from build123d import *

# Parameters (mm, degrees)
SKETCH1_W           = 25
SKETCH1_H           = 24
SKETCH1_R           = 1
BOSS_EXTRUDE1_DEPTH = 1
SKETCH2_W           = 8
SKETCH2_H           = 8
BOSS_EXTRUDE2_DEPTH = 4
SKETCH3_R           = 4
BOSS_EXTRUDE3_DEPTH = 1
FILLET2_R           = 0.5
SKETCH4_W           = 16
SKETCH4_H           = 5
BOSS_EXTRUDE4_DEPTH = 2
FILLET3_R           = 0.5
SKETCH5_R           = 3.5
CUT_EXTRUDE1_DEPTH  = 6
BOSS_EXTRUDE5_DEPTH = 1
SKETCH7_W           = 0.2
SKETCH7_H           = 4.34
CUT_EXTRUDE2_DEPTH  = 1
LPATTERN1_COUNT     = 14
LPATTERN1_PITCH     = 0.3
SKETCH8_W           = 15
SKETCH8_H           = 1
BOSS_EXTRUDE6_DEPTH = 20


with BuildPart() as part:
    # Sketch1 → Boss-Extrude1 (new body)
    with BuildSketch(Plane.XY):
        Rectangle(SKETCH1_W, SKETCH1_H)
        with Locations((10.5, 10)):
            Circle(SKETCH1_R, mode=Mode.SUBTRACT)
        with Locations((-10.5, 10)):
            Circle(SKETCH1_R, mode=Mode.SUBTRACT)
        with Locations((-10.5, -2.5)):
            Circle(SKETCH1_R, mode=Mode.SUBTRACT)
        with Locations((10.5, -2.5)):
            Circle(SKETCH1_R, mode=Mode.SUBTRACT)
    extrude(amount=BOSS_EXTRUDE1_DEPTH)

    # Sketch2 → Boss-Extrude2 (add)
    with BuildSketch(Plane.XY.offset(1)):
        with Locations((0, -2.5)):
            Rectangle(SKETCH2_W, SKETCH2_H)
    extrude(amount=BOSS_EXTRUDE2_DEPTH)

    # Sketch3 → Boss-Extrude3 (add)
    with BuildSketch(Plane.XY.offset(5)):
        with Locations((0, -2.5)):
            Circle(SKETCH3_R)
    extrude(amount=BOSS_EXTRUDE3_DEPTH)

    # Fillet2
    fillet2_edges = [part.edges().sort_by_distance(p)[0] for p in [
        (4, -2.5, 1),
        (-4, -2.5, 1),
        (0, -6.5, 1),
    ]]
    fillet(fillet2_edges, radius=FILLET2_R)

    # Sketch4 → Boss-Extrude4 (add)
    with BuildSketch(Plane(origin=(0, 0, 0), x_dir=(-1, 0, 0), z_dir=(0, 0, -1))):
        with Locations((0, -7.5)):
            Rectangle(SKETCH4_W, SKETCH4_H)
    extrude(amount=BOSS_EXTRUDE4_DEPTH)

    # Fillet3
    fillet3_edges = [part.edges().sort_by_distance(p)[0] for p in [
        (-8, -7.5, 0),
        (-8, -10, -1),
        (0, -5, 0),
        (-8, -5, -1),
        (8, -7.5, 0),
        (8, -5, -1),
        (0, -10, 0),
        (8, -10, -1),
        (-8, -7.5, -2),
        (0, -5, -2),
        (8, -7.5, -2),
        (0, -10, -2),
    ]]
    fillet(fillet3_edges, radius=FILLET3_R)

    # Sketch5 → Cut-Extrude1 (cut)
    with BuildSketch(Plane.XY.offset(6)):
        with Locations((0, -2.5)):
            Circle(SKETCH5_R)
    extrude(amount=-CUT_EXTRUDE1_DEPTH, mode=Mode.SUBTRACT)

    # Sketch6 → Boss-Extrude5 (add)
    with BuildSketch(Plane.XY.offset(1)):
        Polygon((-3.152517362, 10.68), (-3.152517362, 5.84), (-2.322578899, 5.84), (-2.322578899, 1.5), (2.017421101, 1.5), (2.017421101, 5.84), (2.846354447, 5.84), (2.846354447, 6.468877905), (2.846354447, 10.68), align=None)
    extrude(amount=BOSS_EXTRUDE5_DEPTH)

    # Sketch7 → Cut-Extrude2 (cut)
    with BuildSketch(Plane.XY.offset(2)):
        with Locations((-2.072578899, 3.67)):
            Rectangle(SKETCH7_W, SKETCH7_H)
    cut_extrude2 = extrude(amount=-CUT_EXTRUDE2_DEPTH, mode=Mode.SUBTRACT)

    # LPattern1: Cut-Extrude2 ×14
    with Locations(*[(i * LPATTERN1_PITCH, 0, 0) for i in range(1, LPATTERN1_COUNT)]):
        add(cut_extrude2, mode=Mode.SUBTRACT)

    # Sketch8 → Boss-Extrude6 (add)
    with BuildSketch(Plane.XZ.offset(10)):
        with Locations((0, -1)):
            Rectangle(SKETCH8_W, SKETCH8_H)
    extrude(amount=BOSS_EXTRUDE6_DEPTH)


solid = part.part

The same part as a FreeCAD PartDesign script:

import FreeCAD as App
import Part
import Sketcher

V = App.Vector
Q = App.Units.Quantity


def edges_at(feature, points):
    """Names of the edges that pass closest to the given points."""
    edges = feature.Shape.Edges
    near = lambda p: min(range(len(edges)), key=lambda i: edges[i].distToShape(Part.Vertex(*p))[0])
    return sorted({f"Edge{near(p) + 1}" for p in points})


def add_polygon(sketch, points):
    """Adds a closed chain of lines whose ends are joined by coincident constraints."""
    first, n = sketch.GeometryCount, len(points)
    for a, b in zip(points, points[1:] + points[:1]):
        sketch.addGeometry(Part.LineSegment(App.Vector(*a, 0), App.Vector(*b, 0)), False)
    for i in range(n):
        sketch.addConstraint(Sketcher.Constraint("Coincident", first + i, 2, first + (i + 1) % n, 1))

doc = App.newDocument("Part")
params = doc.addObject("Spreadsheet::Sheet", "Params")
for row, (alias, value) in enumerate([
    ("sketch1_diameter", "2 mm"),
    ("sketch1_width", "25 mm"),
    ("sketch1_height", "24 mm"),
    ("pad1_length", "1 mm"),
    ("sketch2_width", "8 mm"),
    ("pad2_length", "4 mm"),
    ("sketch3_diameter", "8 mm"),
    ("pad3_length", "1 mm"),
    ("fillet_radius", "0.5 mm"),
    ("sketch4_width", "16 mm"),
    ("sketch4_height", "5 mm"),
    ("pad4_length", "2 mm"),
    ("fillet2_radius", "0.5 mm"),
    ("sketch5_diameter", "7 mm"),
    ("pocket1_length", "6 mm"),
    ("sketch6_width", "4.34 mm"),
    ("sketch6_height", "4.84 mm"),
    ("pad5_length", "1 mm"),
    ("sketch7_width", "0.2 mm"),
    ("sketch7_height", "4.34 mm"),
    ("pocket2_length", "1 mm"),
    ("linearpattern_pitch", "0.3 mm"),
    ("sketch8_width", "15 mm"),
    ("sketch8_height", "1 mm"),
    ("pad6_length", "20 mm"),
], start=1):
    params.set(f"A{row}", alias)
    params.set(f"B{row}", "=" + value)
    params.setAlias(f"B{row}", alias)

body = doc.addObject("PartDesign::Body", "Body")

# Sketch on XY plane
sketch1 = doc.addObject("Sketcher::SketchObject", "Sketch")
body.addObject(sketch1)
sketch1.AttachmentSupport = (doc.XY_Plane, [""])
sketch1.MapMode = "FlatFace"
add_polygon(sketch1, [(-12.5, 12), (-12.5, -12), (12.5, -12), (12.5, 12)])  # lines 0-3
sketch1.addGeometry(Part.Circle(V(-10.5, -2.5, 0), V(0, 0, 1), 1), False)  # 4
sketch1.addGeometry(Part.Circle(V(10.5, -2.5, 0), V(0, 0, 1), 1), False)  # 5
sketch1.addGeometry(Part.Circle(V(-10.5, 10, 0), V(0, 0, 1), 1), False)  # 6
sketch1.addGeometry(Part.Circle(V(10.5, 10, 0), V(0, 0, 1), 1), False)  # 7
sketch1.addConstraint([
    Sketcher.Constraint("Vertical", 0),
    Sketcher.Constraint("Horizontal", 1),
    Sketcher.Constraint("Vertical", 2),
    Sketcher.Constraint("Horizontal", 3),
    Sketcher.Constraint("Equal", 4, 5),
    Sketcher.Constraint("Equal", 5, 6),
    Sketcher.Constraint("Equal", 6, 7),
    Sketcher.Constraint("Symmetric", 0, 2, 2, 2, -1, 1),
    Sketcher.Constraint("Symmetric", 4, 3, 5, 3, -2),
    Sketcher.Constraint("Symmetric", 6, 3, 7, 3, -2),
    Sketcher.Constraint("Vertical", 4, 3, 6, 3),
    Sketcher.Constraint("Diameter", 4, Q("2 mm")),
    Sketcher.Constraint("DistanceX", 1, 1, 1, 2, Q("25 mm")),
    Sketcher.Constraint("DistanceY", 0, 2, 0, 1, Q("24 mm")),
    Sketcher.Constraint("DistanceY", -1, 1, 6, 3, Q("10 mm")),
    Sketcher.Constraint("DistanceX", 4, 3, 5, 3, Q("21 mm")),
    Sketcher.Constraint("DistanceY", 4, 3, -1, 1, Q("2.5 mm")),
])
sketch1.setExpression("Constraints[15]", "Params.sketch1_diameter")
sketch1.setExpression("Constraints[16]", "Params.sketch1_width")
sketch1.setExpression("Constraints[17]", "Params.sketch1_height")
pad1 = doc.addObject("PartDesign::Pad", "Pad")
body.addObject(pad1)
pad1.Profile = sketch1
pad1.setExpression("Length", "Params.pad1_length")

# Sketch on XY plane
sketch2 = doc.addObject("Sketcher::SketchObject", "Sketch001")
body.addObject(sketch2)
sketch2.AttachmentSupport = (doc.XY_Plane, [""])
sketch2.MapMode = "FlatFace"
sketch2.AttachmentOffset = App.Placement(V(0, 0, 1), App.Rotation())
add_polygon(sketch2, [(-4, 2), (-4, -6), (4, -6), (4, 2)])  # lines 0-3
sketch2.addConstraint([
    Sketcher.Constraint("Vertical", 0),
    Sketcher.Constraint("Horizontal", 1),
    Sketcher.Constraint("Vertical", 2),
    Sketcher.Constraint("Horizontal", 3),
    Sketcher.Constraint("Equal", 3, 0),
    Sketcher.Constraint("DistanceX", 1, 1, 1, 2, Q("8 mm")),
    Sketcher.Constraint("DistanceX", 0, 2, -1, 1, Q("4 mm")),
    Sketcher.Constraint("DistanceY", 0, 2, -1, 1, Q("6.5 mm")),
])
sketch2.setExpression("Constraints[9]", "Params.sketch2_width")
pad2 = doc.addObject("PartDesign::Pad", "Pad001")
body.addObject(pad2)
pad2.Profile = sketch2
pad2.setExpression("Length", "Params.pad2_length")

# Sketch on XY plane
sketch3 = doc.addObject("Sketcher::SketchObject", "Sketch002")
body.addObject(sketch3)
sketch3.AttachmentSupport = (doc.XY_Plane, [""])
sketch3.MapMode = "FlatFace"
sketch3.AttachmentOffset = App.Placement(V(0, 0, 5), App.Rotation())
sketch3.addGeometry(Part.Circle(V(0, -2.5, 0), V(0, 0, 1), 4), False)
sketch3.addConstraint([
    Sketcher.Constraint("PointOnObject", 0, 3, -2),
    Sketcher.Constraint("Diameter", 0, Q("8 mm")),
    Sketcher.Constraint("DistanceY", 0, 3, -1, 1, Q("2.5 mm")),
])
sketch3.setExpression("Constraints[1]", "Params.sketch3_diameter")
pad3 = doc.addObject("PartDesign::Pad", "Pad002")
body.addObject(pad3)
pad3.Profile = sketch3
pad3.setExpression("Length", "Params.pad3_length")
doc.recompute()

fillet = doc.addObject("PartDesign::Fillet", "Fillet")
body.addObject(fillet)
fillet.Base = (pad3, edges_at(pad3, [(4, -2.5, 1), (-4, -2.5, 1), (0, -6.5, 1)]))
fillet.setExpression("Radius", "Params.fillet_radius")

# Sketch on XY plane
sketch4 = doc.addObject("Sketcher::SketchObject", "Sketch003")
body.addObject(sketch4)
sketch4.AttachmentSupport = (doc.XY_Plane, [""])
sketch4.MapMode = "FlatFace"
add_polygon(sketch4, [(8, -5), (8, -10), (-8, -10), (-8, -5)])  # lines 0-3
sketch4.addConstraint([
    Sketcher.Constraint("Vertical", 0),
    Sketcher.Constraint("Horizontal", 1),
    Sketcher.Constraint("Vertical", 2),
    Sketcher.Constraint("Horizontal", 3),
    Sketcher.Constraint("DistanceX", 1, 2, 1, 1, Q("16 mm")),
    Sketcher.Constraint("DistanceY", 0, 2, 0, 1, Q("5 mm")),
    Sketcher.Constraint("DistanceX", -1, 1, 0, 2, Q("8 mm")),
    Sketcher.Constraint("DistanceY", 0, 2, -1, 1, Q("10 mm")),
])
sketch4.setExpression("Constraints[8]", "Params.sketch4_width")
sketch4.setExpression("Constraints[9]", "Params.sketch4_height")
pad4 = doc.addObject("PartDesign::Pad", "Pad003")
body.addObject(pad4)
pad4.Profile = sketch4
pad4.setExpression("Length", "Params.pad4_length")
pad4.Reversed = True
doc.recompute()

fillet2 = doc.addObject("PartDesign::Fillet", "Fillet001")
body.addObject(fillet2)
fillet2.Base = (pad4, edges_at(pad4, [
    (-8, -7.5, 0),
    (-8, -10, -1),
    (0, -5, 0),
    (-8, -5, -1),
    (8, -7.5, 0),
    (8, -5, -1),
    (0, -10, 0),
    (8, -10, -1),
    (-8, -7.5, -2),
    (0, -5, -2),
    (8, -7.5, -2),
    (0, -10, -2),
]))
fillet2.setExpression("Radius", "Params.fillet2_radius")

# Sketch on XY plane
sketch5 = doc.addObject("Sketcher::SketchObject", "Sketch004")
body.addObject(sketch5)
sketch5.AttachmentSupport = (doc.XY_Plane, [""])
sketch5.MapMode = "FlatFace"
sketch5.AttachmentOffset = App.Placement(V(0, 0, 6), App.Rotation())
sketch5.addGeometry(Part.Circle(V(0, -2.5, 0), V(0, 0, 1), 3.5), False)
sketch5.addConstraint([
    Sketcher.Constraint("PointOnObject", 0, 3, -2),
    Sketcher.Constraint("Diameter", 0, Q("7 mm")),
    Sketcher.Constraint("DistanceY", 0, 3, -1, 1, Q("2.5 mm")),
])
sketch5.setExpression("Constraints[1]", "Params.sketch5_diameter")
pocket1 = doc.addObject("PartDesign::Pocket", "Pocket")
body.addObject(pocket1)
pocket1.Profile = sketch5
pocket1.setExpression("Length", "Params.pocket1_length")

# Sketch on XY plane
sketch6 = doc.addObject("Sketcher::SketchObject", "Sketch005")
body.addObject(sketch6)
sketch6.AttachmentSupport = (doc.XY_Plane, [""])
sketch6.MapMode = "FlatFace"
sketch6.AttachmentOffset = App.Placement(V(0, 0, 1), App.Rotation())
add_polygon(sketch6, [(-3.2, 10.7), (-3.2, 5.8), (-2.3, 5.8), (-2.3, 1.5), (2, 1.5), (2, 5.8), (2.8, 5.8), (2.8, 10.7)])  # lines 0-7
sketch6.addConstraint([
    Sketcher.Constraint("Vertical", 0),
    Sketcher.Constraint("Horizontal", 1),
    Sketcher.Constraint("Vertical", 2),
    Sketcher.Constraint("Horizontal", 3),
    Sketcher.Constraint("Vertical", 4),
    Sketcher.Constraint("Horizontal", 5),
    Sketcher.Constraint("Vertical", 6),
    Sketcher.Constraint("Horizontal", 7),
    Sketcher.Constraint("Horizontal", 1, 2, 4, 2),
    Sketcher.Constraint("Equal", 3, 2),
    Sketcher.Constraint("DistanceX", 3, 1, 3, 2, Q("4.34 mm")),
    Sketcher.Constraint("DistanceY", 0, 2, 0, 1, Q("4.84 mm")),
    Sketcher.Constraint("DistanceY", -1, 1, 2, 2, Q("1.5 mm")),
    Sketcher.Constraint("DistanceX", 1, 1, 1, 2, Q("0.829938 mm")),
    Sketcher.Constraint("DistanceX", 7, 2, 7, 1, Q("5.998872 mm")),
    Sketcher.Constraint("DistanceX", 1, 2, -1, 1, Q("2.322579 mm")),
])
sketch6.setExpression("Constraints[18]", "Params.sketch6_width")
sketch6.setExpression("Constraints[19]", "Params.sketch6_height")
pad5 = doc.addObject("PartDesign::Pad", "Pad004")
body.addObject(pad5)
pad5.Profile = sketch6
pad5.setExpression("Length", "Params.pad5_length")

# Sketch on XY plane
sketch7 = doc.addObject("Sketcher::SketchObject", "Sketch006")
body.addObject(sketch7)
sketch7.AttachmentSupport = (doc.XY_Plane, [""])
sketch7.MapMode = "FlatFace"
sketch7.AttachmentOffset = App.Placement(V(0, 0, 2), App.Rotation())
add_polygon(sketch7, [(-2.17, 5.84), (-2.17, 1.5), (-1.97, 1.5), (-1.97, 5.84)])  # lines 0-3
sketch7.addConstraint([
    Sketcher.Constraint("Vertical", 0),
    Sketcher.Constraint("Horizontal", 1),
    Sketcher.Constraint("Vertical", 2),
    Sketcher.Constraint("Horizontal", 3),
    Sketcher.Constraint("DistanceX", 1, 1, 1, 2, Q("0.2 mm")),
    Sketcher.Constraint("DistanceY", 0, 2, 0, 1, Q("4.34 mm")),
    Sketcher.Constraint("DistanceY", -1, 1, 0, 2, Q("1.5 mm")),
    Sketcher.Constraint("DistanceX", 0, 2, -1, 1, Q("2.172579 mm")),
])
sketch7.setExpression("Constraints[8]", "Params.sketch7_width")
sketch7.setExpression("Constraints[9]", "Params.sketch7_height")
pocket2 = doc.addObject("PartDesign::Pocket", "Pocket001")
body.addObject(pocket2)
pocket2.Profile = sketch7
pocket2.setExpression("Length", "Params.pocket2_length")
doc.recompute()

linearpattern = doc.addObject("PartDesign::LinearPattern", "LinearPattern")
body.addObject(linearpattern)
linearpattern.Originals = [pocket2]
linearpattern.Direction = (doc.X_Axis, [""])
linearpattern.Mode = "offset"
linearpattern.setExpression("Offset", "Params.linearpattern_pitch")
linearpattern.Occurrences = 14
body.Tip = linearpattern

# Sketch on XZ plane
sketch8 = doc.addObject("Sketcher::SketchObject", "Sketch007")
body.addObject(sketch8)
sketch8.AttachmentSupport = (doc.XZ_Plane, [""])
sketch8.MapMode = "FlatFace"
sketch8.AttachmentOffset = App.Placement(V(0, 0, 10), App.Rotation())
add_polygon(sketch8, [(-7.5, -0.5), (-7.5, -1.5), (7.5, -1.5), (7.5, -0.5)])  # lines 0-3
sketch8.addConstraint([
    Sketcher.Constraint("Vertical", 0),
    Sketcher.Constraint("Horizontal", 1),
    Sketcher.Constraint("Vertical", 2),
    Sketcher.Constraint("Horizontal", 3),
    Sketcher.Constraint("DistanceX", 1, 1, 1, 2, Q("15 mm")),
    Sketcher.Constraint("DistanceY", 0, 2, 0, 1, Q("1 mm")),
    Sketcher.Constraint("DistanceX", 0, 2, -1, 1, Q("7.5 mm")),
    Sketcher.Constraint("DistanceY", 0, 2, -1, 1, Q("1.5 mm")),
])
sketch8.setExpression("Constraints[8]", "Params.sketch8_width")
sketch8.setExpression("Constraints[9]", "Params.sketch8_height")
pad6 = doc.addObject("PartDesign::Pad", "Pad005")
body.addObject(pad6)
pad6.Profile = sketch8
pad6.setExpression("Length", "Params.pad6_length")

doc.recompute()
